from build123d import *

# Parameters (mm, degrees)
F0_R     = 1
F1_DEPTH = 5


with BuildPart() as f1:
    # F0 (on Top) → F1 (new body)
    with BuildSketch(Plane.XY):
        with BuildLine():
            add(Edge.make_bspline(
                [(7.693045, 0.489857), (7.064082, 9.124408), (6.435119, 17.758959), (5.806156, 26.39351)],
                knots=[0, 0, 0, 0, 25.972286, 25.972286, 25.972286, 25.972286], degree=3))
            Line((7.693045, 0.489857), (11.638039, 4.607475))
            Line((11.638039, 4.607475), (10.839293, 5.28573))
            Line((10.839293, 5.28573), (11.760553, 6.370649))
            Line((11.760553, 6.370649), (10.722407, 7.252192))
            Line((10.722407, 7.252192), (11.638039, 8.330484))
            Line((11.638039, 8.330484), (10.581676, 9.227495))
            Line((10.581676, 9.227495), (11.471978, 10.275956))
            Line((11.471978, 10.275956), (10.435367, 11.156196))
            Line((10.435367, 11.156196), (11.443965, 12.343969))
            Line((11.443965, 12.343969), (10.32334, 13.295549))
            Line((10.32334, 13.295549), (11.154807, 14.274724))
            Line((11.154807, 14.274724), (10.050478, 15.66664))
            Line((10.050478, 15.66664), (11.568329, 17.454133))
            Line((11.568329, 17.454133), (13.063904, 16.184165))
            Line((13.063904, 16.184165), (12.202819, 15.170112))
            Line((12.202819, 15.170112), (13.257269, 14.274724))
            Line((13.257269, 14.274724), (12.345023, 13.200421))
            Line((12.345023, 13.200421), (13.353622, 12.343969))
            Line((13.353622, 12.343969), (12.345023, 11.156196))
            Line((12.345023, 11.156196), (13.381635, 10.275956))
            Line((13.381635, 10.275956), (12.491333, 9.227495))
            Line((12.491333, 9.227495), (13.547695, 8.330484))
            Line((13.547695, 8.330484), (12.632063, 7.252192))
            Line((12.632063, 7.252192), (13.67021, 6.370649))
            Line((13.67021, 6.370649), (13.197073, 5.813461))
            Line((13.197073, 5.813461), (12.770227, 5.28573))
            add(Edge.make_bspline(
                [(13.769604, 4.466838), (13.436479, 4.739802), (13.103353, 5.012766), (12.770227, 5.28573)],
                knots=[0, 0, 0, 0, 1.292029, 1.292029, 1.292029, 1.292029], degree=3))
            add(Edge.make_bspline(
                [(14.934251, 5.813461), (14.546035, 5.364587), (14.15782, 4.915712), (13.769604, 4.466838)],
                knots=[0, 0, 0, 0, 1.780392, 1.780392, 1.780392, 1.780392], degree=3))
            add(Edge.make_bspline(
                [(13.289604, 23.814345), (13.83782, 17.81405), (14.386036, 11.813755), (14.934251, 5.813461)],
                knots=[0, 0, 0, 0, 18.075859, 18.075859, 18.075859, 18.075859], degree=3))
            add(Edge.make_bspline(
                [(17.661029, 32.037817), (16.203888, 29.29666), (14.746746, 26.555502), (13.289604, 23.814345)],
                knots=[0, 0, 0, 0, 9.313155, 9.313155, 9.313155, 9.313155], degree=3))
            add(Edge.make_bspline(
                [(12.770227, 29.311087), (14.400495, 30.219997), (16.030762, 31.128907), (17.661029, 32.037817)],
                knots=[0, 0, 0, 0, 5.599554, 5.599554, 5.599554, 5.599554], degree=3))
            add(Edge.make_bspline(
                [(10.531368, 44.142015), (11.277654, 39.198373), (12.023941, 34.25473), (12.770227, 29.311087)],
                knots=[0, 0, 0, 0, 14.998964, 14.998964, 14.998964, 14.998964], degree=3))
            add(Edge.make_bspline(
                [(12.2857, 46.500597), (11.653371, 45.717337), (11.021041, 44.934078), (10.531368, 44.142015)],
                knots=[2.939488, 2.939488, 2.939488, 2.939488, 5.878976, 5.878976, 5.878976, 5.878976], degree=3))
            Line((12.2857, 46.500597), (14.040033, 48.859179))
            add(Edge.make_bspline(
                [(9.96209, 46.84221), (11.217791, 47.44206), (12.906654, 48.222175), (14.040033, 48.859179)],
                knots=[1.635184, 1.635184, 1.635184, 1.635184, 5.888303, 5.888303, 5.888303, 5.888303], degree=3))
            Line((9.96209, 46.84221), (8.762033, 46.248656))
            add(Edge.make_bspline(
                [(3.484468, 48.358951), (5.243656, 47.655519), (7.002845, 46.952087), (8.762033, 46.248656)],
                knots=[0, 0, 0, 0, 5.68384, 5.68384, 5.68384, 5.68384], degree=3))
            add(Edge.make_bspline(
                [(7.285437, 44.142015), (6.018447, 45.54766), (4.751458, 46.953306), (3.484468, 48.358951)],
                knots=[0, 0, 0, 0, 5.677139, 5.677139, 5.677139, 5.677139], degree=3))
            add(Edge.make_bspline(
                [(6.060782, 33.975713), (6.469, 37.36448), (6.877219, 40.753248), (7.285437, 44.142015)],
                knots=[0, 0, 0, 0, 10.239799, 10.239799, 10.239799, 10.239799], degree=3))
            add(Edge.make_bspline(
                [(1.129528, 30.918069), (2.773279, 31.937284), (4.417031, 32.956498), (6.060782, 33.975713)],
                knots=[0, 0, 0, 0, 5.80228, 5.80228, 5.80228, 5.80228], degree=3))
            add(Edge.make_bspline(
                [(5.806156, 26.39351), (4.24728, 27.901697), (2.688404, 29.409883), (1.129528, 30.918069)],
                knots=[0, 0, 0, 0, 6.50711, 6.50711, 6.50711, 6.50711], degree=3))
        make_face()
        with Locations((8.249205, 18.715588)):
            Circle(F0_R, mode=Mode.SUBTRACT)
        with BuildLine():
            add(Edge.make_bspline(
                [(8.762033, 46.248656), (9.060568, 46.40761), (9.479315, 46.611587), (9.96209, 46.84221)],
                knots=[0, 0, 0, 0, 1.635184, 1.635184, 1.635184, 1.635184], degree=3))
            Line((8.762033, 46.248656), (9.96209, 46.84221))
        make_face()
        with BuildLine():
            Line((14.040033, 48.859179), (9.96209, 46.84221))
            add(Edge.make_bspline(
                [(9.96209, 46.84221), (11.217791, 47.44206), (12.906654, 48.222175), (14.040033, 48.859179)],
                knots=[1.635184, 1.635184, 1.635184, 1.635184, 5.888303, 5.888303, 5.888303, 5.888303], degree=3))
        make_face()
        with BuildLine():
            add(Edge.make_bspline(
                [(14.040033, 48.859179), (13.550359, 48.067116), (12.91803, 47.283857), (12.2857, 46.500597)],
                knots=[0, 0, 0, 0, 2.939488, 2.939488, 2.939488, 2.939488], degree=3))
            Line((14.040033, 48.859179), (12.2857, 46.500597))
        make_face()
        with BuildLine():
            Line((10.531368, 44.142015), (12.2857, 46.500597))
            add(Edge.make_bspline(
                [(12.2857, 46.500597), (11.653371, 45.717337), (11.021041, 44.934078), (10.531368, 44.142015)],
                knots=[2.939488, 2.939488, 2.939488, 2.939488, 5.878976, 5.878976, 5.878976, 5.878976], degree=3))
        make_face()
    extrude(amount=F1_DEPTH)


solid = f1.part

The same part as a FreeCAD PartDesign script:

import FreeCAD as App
import Part
import Sketcher
from FreeCAD import Vector

doc = App.newDocument("Part")
params = doc.addObject("Spreadsheet::Sheet", "Params")
for row, (alias, value) in enumerate([
    ("sketch1_diameter", "2 mm"),
    ("pad1_length", "5 mm"),
], start=1):
    params.set(f"A{row}", alias)
    params.set(f"B{row}", "=" + value)
    params.setAlias(f"B{row}", alias)

body = doc.addObject("PartDesign::Body", "Body")

# Sketch on XY plane
sketch1 = body.newObject("Sketcher::SketchObject", "Sketch")
sketch1.AttachmentSupport = (doc.getObject("XY_Plane"), [""])
sketch1.MapMode = "FlatFace"
sketch1.addGeometry([
    Part.BSplineCurve([Vector(7.693045, 0.489857, 0), Vector(7.064082, 9.124408, 0), Vector(6.435119, 17.758959, 0), Vector(5.806156, 26.39351, 0)], [4, 4], [0, 25.972286], False, 3, [1, 1, 1, 1], False),  # 0
    Part.LineSegment(Vector(7.693045, 0.489857, 0), Vector(11.638039, 4.607475, 0)),  # 1
    Part.LineSegment(Vector(11.638039, 4.607475, 0), Vector(10.839293, 5.28573, 0)),  # 2
    Part.LineSegment(Vector(10.839293, 5.28573, 0), Vector(11.760553, 6.370649, 0)),  # 3
    Part.LineSegment(Vector(11.760553, 6.370649, 0), Vector(10.722407, 7.252192, 0)),  # 4
    Part.LineSegment(Vector(10.722407, 7.252192, 0), Vector(11.638039, 8.330484, 0)),  # 5
    Part.LineSegment(Vector(11.638039, 8.330484, 0), Vector(10.581676, 9.227495, 0)),  # 6
    Part.LineSegment(Vector(10.581676, 9.227495, 0), Vector(11.471978, 10.275956, 0)),  # 7
    Part.LineSegment(Vector(11.471978, 10.275956, 0), Vector(10.435367, 11.156196, 0)),  # 8
    Part.LineSegment(Vector(10.435367, 11.156196, 0), Vector(11.443965, 12.343969, 0)),  # 9
    Part.LineSegment(Vector(11.443965, 12.343969, 0), Vector(10.32334, 13.295549, 0)),  # 10
    Part.LineSegment(Vector(10.32334, 13.295549, 0), Vector(11.154807, 14.274724, 0)),  # 11
    Part.LineSegment(Vector(11.154807, 14.274724, 0), Vector(10.050478, 15.66664, 0)),  # 12
    Part.LineSegment(Vector(10.050478, 15.66664, 0), Vector(11.568329, 17.454133, 0)),  # 13
    Part.LineSegment(Vector(11.568329, 17.454133, 0), Vector(13.063904, 16.184165, 0)),  # 14
    Part.LineSegment(Vector(13.063904, 16.184165, 0), Vector(12.202819, 15.170112, 0)),  # 15
    Part.LineSegment(Vector(12.202819, 15.170112, 0), Vector(13.257269, 14.274724, 0)),  # 16
    Part.LineSegment(Vector(13.257269, 14.274724, 0), Vector(12.345023, 13.200421, 0)),  # 17
    Part.LineSegment(Vector(12.345023, 13.200421, 0), Vector(13.353622, 12.343969, 0)),  # 18
    Part.LineSegment(Vector(13.353622, 12.343969, 0), Vector(12.345023, 11.156196, 0)),  # 19
    Part.LineSegment(Vector(12.345023, 11.156196, 0), Vector(13.381635, 10.275956, 0)),  # 20
    Part.LineSegment(Vector(13.381635, 10.275956, 0), Vector(12.491333, 9.227495, 0)),  # 21
    Part.LineSegment(Vector(12.491333, 9.227495, 0), Vector(13.547695, 8.330484, 0)),  # 22
    Part.LineSegment(Vector(13.547695, 8.330484, 0), Vector(12.632063, 7.252192, 0)),  # 23
    Part.LineSegment(Vector(12.632063, 7.252192, 0), Vector(13.67021, 6.370649, 0)),  # 24
    Part.LineSegment(Vector(13.67021, 6.370649, 0), Vector(13.197073, 5.813461, 0)),  # 25
    Part.LineSegment(Vector(13.197073, 5.813461, 0), Vector(12.770227, 5.28573, 0)),  # 26
    Part.BSplineCurve([Vector(13.769604, 4.466838, 0), Vector(13.436479, 4.739802, 0), Vector(13.103353, 5.012766, 0), Vector(12.770227, 5.28573, 0)], [4, 4], [0, 1.292029], False, 3, [1, 1, 1, 1], False),  # 27
    Part.BSplineCurve([Vector(14.934251, 5.813461, 0), Vector(14.546035, 5.364587, 0), Vector(14.15782, 4.915712, 0), Vector(13.769604, 4.466838, 0)], [4, 4], [0, 1.780392], False, 3, [1, 1, 1, 1], False),  # 28
    Part.BSplineCurve([Vector(13.289604, 23.814345, 0), Vector(13.83782, 17.81405, 0), Vector(14.386036, 11.813755, 0), Vector(14.934251, 5.813461, 0)], [4, 4], [0, 18.075859], False, 3, [1, 1, 1, 1], False),  # 29
    Part.BSplineCurve([Vector(17.661029, 32.037817, 0), Vector(16.203888, 29.29666, 0), Vector(14.746746, 26.555502, 0), Vector(13.289604, 23.814345, 0)], [4, 4], [0, 9.313155], False, 3, [1, 1, 1, 1], False),  # 30
    Part.BSplineCurve([Vector(12.770227, 29.311087, 0), Vector(14.400495, 30.219997, 0), Vector(16.030762, 31.128907, 0), Vector(17.661029, 32.037817, 0)], [4, 4], [0, 5.599554], False, 3, [1, 1, 1, 1], False),  # 31
    Part.BSplineCurve([Vector(10.531368, 44.142015, 0), Vector(11.277654, 39.198373, 0), Vector(12.023941, 34.25473, 0), Vector(12.770227, 29.311087, 0)], [4, 4], [0, 14.998964], False, 3, [1, 1, 1, 1], False),  # 32
    Part.LineSegment(Vector(10.531368, 44.142015, 0), Vector(12.2857, 46.500597, 0)),  # 33
    Part.BSplineCurve([Vector(14.040033, 48.859179, 0), Vector(13.550359, 48.067116, 0), Vector(12.91803, 47.283857, 0), Vector(12.2857, 46.500597, 0)], [4, 4], [0, 2.939488], False, 3, [1, 1, 1, 1], False),  # 34
    Part.LineSegment(Vector(14.040033, 48.859179, 0), Vector(9.96209, 46.84221, 0)),  # 35
    Part.BSplineCurve([Vector(8.762033, 46.248656, 0), Vector(9.060568, 46.40761, 0), Vector(9.479315, 46.611587, 0), Vector(9.96209, 46.84221, 0)], [4, 4], [0, 1.635184], False, 3, [1, 1, 1, 1], False),  # 36
    Part.BSplineCurve([Vector(3.484468, 48.358951, 0), Vector(5.243656, 47.655519, 0), Vector(7.002845, 46.952087, 0), Vector(8.762033, 46.248656, 0)], [4, 4], [0, 5.68384], False, 3, [1, 1, 1, 1], False),  # 37
    Part.BSplineCurve([Vector(7.285437, 44.142015, 0), Vector(6.018447, 45.54766, 0), Vector(4.751458, 46.953306, 0), Vector(3.484468, 48.358951, 0)], [4, 4], [0, 5.677139], False, 3, [1, 1, 1, 1], False),  # 38
    Part.BSplineCurve([Vector(6.060782, 33.975713, 0), Vector(6.469, 37.36448, 0), Vector(6.877219, 40.753248, 0), Vector(7.285437, 44.142015, 0)], [4, 4], [0, 10.239799], False, 3, [1, 1, 1, 1], False),  # 39
    Part.BSplineCurve([Vector(1.129528, 30.918069, 0), Vector(2.773279, 31.937284, 0), Vector(4.417031, 32.956498, 0), Vector(6.060782, 33.975713, 0)], [4, 4], [0, 5.80228], False, 3, [1, 1, 1, 1], False),  # 40
    Part.BSplineCurve([Vector(5.806156, 26.39351, 0), Vector(4.24728, 27.901697, 0), Vector(2.688404, 29.409883, 0), Vector(1.129528, 30.918069, 0)], [4, 4], [0, 6.50711], False, 3, [1, 1, 1, 1], False),  # 41
    Part.Circle(Vector(8.249205, 18.715588, 0), Vector(0, 0, 1), 1),  # 42
], False)
sketch1.addConstraint([
    Sketcher.Constraint("Block", 0),
    Sketcher.Constraint("Block", 27),
    Sketcher.Constraint("Block", 28),
    Sketcher.Constraint("Block", 29),
    Sketcher.Constraint("Block", 30),
    Sketcher.Constraint("Block", 31),
    Sketcher.Constraint("Block", 32),
    Sketcher.Constraint("Block", 34),
    Sketcher.Constraint("Block", 36),
    Sketcher.Constraint("Block", 37),
    Sketcher.Constraint("Block", 38),
    Sketcher.Constraint("Block", 39),
    Sketcher.Constraint("Block", 40),
    Sketcher.Constraint("Block", 41),
    Sketcher.Constraint("Coincident", 0, 1, 1, 1),
    Sketcher.Constraint("Coincident", 1, 2, 2, 1),
    Sketcher.Constraint("Coincident", 2, 2, 3, 1),
    Sketcher.Constraint("Coincident", 3, 2, 4, 1),
    Sketcher.Constraint("Coincident", 4, 2, 5, 1),
    Sketcher.Constraint("Coincident", 5, 2, 6, 1),
    Sketcher.Constraint("Coincident", 6, 2, 7, 1),
    Sketcher.Constraint("Coincident", 7, 2, 8, 1),
    Sketcher.Constraint("Coincident", 8, 2, 9, 1),
    Sketcher.Constraint("Coincident", 9, 2, 10, 1),
    Sketcher.Constraint("Coincident", 10, 2, 11, 1),
    Sketcher.Constraint("Coincident", 11, 2, 12, 1),
    Sketcher.Constraint("Coincident", 12, 2, 13, 1),
    Sketcher.Constraint("Coincident", 13, 2, 14, 1),
    Sketcher.Constraint("Coincident", 14, 2, 15, 1),
    Sketcher.Constraint("Coincident", 15, 2, 16, 1),
    Sketcher.Constraint("Coincident", 16, 2, 17, 1),
    Sketcher.Constraint("Coincident", 17, 2, 18, 1),
    Sketcher.Constraint("Coincident", 18, 2, 19, 1),
    Sketcher.Constraint("Coincident", 19, 2, 20, 1),
    Sketcher.Constraint("Coincident", 20, 2, 21, 1),
    Sketcher.Constraint("Coincident", 21, 2, 22, 1),
    Sketcher.Constraint("Coincident", 22, 2, 23, 1),
    Sketcher.Constraint("Coincident", 23, 2, 24, 1),
    Sketcher.Constraint("Coincident", 24, 2, 25, 1),
    Sketcher.Constraint("Coincident", 25, 2, 26, 1),
    Sketcher.Constraint("Coincident", 26, 2, 27, 2),
    Sketcher.Constraint("Coincident", 32, 1, 33, 1),
    Sketcher.Constraint("Coincident", 33, 2, 34, 2),
    Sketcher.Constraint("Coincident", 34, 1, 35, 1),
    Sketcher.Constraint("Coincident", 35, 2, 36, 2),
    Sketcher.Constraint("Perpendicular", 2, 3),
    Sketcher.Constraint("Perpendicular", 3, 4),
    Sketcher.Constraint("Perpendicular", 4, 5),
    Sketcher.Constraint("Perpendicular", 5, 6),
    Sketcher.Constraint("Perpendicular", 6, 7),
    Sketcher.Constraint("Perpendicular", 7, 8),
    Sketcher.Constraint("Perpendicular", 8, 9),
    Sketcher.Constraint("Perpendicular", 9, 10),
    Sketcher.Constraint("Perpendicular", 10, 11),
    Sketcher.Constraint("Parallel", 11, 13),
    Sketcher.Constraint("Perpendicular", 13, 14),
    Sketcher.Constraint("Perpendicular", 14, 15),
    Sketcher.Constraint("Perpendicular", 15, 16),
    Sketcher.Constraint("Perpendicular", 16, 17),
    Sketcher.Constraint("Perpendicular", 17, 18),
    Sketcher.Constraint("Perpendicular", 18, 19),
    Sketcher.Constraint("Perpendicular", 19, 20),
    Sketcher.Constraint("Perpendicular", 20, 21),
    Sketcher.Constraint("Perpendicular", 21, 22),
    Sketcher.Constraint("Perpendicular", 22, 23),
    Sketcher.Constraint("Perpendicular", 23, 24),
    Sketcher.Constraint("Perpendicular", 24, 25),
    Sketcher.Constraint("Horizontal", 11, 2, 16, 2),
    Sketcher.Constraint("Horizontal", 9, 2, 18, 2),
    Sketcher.Constraint("Horizontal", 8, 2, 19, 2),
    Sketcher.Constraint("Horizontal", 7, 2, 20, 2),
    Sketcher.Constraint("Horizontal", 6, 2, 21, 2),
    Sketcher.Constraint("Horizontal", 5, 2, 22, 2),
    Sketcher.Constraint("Horizontal", 4, 2, 23, 2),
    Sketcher.Constraint("Horizontal", 3, 2, 24, 2),
    Sketcher.Constraint("Horizontal", 2, 2, 26, 2),
    Sketcher.Constraint("Vertical", 1, 2, 5, 2),
    Sketcher.Constraint("Vertical", 17, 2, 19, 2),
    Sketcher.Constraint("Diameter", 42, 2.0),
    Sketcher.Constraint("Distance", 5, 1.414601),
    Sketcher.Constraint("DistanceY", 6, 2, 8, 2, 1.928701),
    Sketcher.Constraint("DistanceX", 8, 2, 9, 2, 1.008598),
    Sketcher.Constraint("DistanceX", 10, 2, 5, 2, 1.314699),
    Sketcher.Constraint("Distance", 8, 1.359921),
    Sketcher.Constraint("Distance", 9, 1.558228),
    Sketcher.Constraint("Distance", 11, 1.28457),
    Sketcher.Constraint("Distance", 14, 1.96203),
    Sketcher.Constraint("Distance", 17, 1.409369),
    Sketcher.Constraint("Distance", 25, 0.73097),
    Sketcher.Constraint("DistanceY", -1, 1, 42, 3, 18.715588),
    Sketcher.Constraint("DistanceX", -1, 1, 1, 2, 11.638039),
    Sketcher.Constraint("DistanceY", -1, 1, 3, 2, 6.370649),
    Sketcher.Constraint("DistanceY", -1, 1, 9, 2, 12.343969),
    Sketcher.Constraint("DistanceY", -1, 1, 12, 2, 15.66664),
    Sketcher.Constraint("DistanceX", -1, 1, 13, 2, 11.568329),
    Sketcher.Constraint("DistanceX", -1, 1, 15, 2, 12.202819),
    Sketcher.Constraint("DistanceX", -1, 1, 16, 2, 13.257269),
    Sketcher.Constraint("DistanceX", -1, 1, 42, 3, 8.249205),
])
sketch1.setExpression("Constraints[78]", "Params.sketch1_diameter")
pad1 = body.newObject("PartDesign::Pad", "Pad")
pad1.Profile = sketch1
pad1.setExpression("Length", "Params.pad1_length")

doc.recompute()
